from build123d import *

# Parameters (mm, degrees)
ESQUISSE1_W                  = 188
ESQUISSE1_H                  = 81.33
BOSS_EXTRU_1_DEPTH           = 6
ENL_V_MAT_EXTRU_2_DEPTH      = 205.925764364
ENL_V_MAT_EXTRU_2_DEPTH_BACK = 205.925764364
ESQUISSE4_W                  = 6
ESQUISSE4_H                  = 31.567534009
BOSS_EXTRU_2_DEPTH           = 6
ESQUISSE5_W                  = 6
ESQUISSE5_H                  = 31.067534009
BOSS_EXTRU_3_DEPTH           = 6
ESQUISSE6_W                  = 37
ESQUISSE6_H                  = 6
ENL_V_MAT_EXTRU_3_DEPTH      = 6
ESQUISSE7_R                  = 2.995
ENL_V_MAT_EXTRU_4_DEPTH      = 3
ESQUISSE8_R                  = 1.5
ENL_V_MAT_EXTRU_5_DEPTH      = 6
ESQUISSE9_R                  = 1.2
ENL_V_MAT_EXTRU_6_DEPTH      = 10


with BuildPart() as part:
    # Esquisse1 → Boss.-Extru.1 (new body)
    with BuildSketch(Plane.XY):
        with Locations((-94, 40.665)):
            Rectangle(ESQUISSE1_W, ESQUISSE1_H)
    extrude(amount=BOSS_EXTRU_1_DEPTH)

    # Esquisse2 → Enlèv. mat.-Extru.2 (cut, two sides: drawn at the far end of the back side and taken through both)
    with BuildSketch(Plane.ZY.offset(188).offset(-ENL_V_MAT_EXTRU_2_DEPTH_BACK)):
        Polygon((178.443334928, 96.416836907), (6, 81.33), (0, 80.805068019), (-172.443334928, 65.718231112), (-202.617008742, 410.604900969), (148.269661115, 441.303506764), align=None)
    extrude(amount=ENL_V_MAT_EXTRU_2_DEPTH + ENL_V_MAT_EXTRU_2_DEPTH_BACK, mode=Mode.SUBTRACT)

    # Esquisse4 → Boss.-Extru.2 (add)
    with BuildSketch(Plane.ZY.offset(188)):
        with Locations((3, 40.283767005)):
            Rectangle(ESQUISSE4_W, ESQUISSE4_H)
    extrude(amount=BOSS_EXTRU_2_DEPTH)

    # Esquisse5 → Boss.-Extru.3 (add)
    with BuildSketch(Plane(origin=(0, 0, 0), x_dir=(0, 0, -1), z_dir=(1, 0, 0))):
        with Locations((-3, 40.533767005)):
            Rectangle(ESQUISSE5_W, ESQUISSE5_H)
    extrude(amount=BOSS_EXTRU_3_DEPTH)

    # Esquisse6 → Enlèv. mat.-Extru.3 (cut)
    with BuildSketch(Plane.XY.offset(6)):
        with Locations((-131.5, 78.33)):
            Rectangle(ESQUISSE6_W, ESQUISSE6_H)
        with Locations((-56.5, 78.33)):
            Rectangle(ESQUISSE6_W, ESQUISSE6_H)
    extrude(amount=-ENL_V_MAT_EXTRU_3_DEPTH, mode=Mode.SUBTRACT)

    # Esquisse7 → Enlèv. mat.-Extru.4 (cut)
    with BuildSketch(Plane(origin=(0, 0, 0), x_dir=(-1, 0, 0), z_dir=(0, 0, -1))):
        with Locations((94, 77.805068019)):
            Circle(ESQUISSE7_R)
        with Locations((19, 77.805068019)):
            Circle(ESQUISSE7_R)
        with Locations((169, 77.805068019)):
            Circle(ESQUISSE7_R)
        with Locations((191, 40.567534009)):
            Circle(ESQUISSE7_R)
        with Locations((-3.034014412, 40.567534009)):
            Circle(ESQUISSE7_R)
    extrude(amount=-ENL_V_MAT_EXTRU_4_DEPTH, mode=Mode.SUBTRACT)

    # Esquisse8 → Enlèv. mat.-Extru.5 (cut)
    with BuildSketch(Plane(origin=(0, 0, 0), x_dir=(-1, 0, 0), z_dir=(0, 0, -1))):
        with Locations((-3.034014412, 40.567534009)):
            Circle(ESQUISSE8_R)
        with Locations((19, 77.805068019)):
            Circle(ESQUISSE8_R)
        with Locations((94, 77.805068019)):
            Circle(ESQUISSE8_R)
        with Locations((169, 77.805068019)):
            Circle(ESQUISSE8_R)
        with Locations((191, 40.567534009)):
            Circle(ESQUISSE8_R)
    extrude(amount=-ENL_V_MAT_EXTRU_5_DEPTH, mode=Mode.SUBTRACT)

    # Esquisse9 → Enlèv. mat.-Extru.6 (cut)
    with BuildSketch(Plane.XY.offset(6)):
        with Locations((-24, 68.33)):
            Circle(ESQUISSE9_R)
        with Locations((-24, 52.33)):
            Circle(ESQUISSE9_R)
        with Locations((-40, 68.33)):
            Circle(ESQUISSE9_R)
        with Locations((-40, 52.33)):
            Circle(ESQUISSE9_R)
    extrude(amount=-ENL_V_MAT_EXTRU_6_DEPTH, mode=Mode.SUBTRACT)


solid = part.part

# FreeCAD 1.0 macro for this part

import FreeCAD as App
import Part
import Sketcher
from FreeCAD import Vector
Q = App.Units.Quantity


def add_polygon(sketch, points):
    """Adds a closed chain of lines whose ends are joined by coincident constraints."""
    first, n = sketch.GeometryCount, len(points)
    for a, b in zip(points, points[1:] + points[:1]):
        sketch.addGeometry(Part.LineSegment(App.Vector(*a, 0), App.Vector(*b, 0)), False)
    for i in range(n):
        sketch.addConstraint(Sketcher.Constraint("Coincident", first + i, 2, first + (i + 1) % n, 1))

doc = App.newDocument("Part")
body = doc.addObject("PartDesign::Body", "Body")

# Sketch on XY plane
sketch1 = body.newObject("Sketcher::SketchObject", "Sketch")
sketch1.AttachmentSupport = (doc.getObject("XY_Plane"), [""])
sketch1.MapMode = "FlatFace"
add_polygon(sketch1, [(-188, 81), (-188, 0), (0, 0), (0, 81)])  # lines 0-3
sketch1.addConstraint(Sketcher.Constraint("Vertical", 0))
sketch1.addConstraint(Sketcher.Constraint("Horizontal", 1))
sketch1.addConstraint(Sketcher.Constraint("Vertical", 2))
sketch1.addConstraint(Sketcher.Constraint("Horizontal", 3))
sketch1.addConstraint(Sketcher.Constraint("Coincident", 1, 2, -1, 1))
sketch1.addConstraint(Sketcher.Constraint("DistanceX", 1, 1, 1, 2, Q("188 mm")))
sketch1.addConstraint(Sketcher.Constraint("DistanceY", 0, 2, 0, 1, Q("81.33 mm")))
pad1 = body.newObject("PartDesign::Pad", "Pad")
pad1.Profile = sketch1
pad1.Length = 6

# Sketch on YZ plane
sketch2 = body.newObject("Sketcher::SketchObject", "Sketch001")
sketch2.AttachmentSupport = (doc.getObject("YZ_Plane"), [""])
sketch2.MapMode = "FlatFace"
sketch2.AttachmentOffset = App.Placement(Vector(0, 0, -188), App.Rotation())
add_polygon(sketch2, [(81, 6), (96, 178), (441, 148), (411, -203), (66, -172), (81, 0)])  # lines 0-5
sketch2.addConstraint(Sketcher.Constraint("PointOnObject", 4, 2, -1))
sketch2.addConstraint(Sketcher.Constraint("Perpendicular", 0, 1))
sketch2.addConstraint(Sketcher.Constraint("Perpendicular", 1, 2))
sketch2.addConstraint(Sketcher.Constraint("Perpendicular", 2, 3))
sketch2.addConstraint(Sketcher.Constraint("Perpendicular", 3, 4))
sketch2.addConstraint(Sketcher.Constraint("Parallel", 4, 5))
sketch2.addConstraint(Sketcher.Constraint("Equal", 0, 4))
sketch2.addConstraint(Sketcher.Constraint("Angle", 0, Q("85 deg")))
sketch2.addConstraint(Sketcher.Constraint("DistanceY", -1, 1, 5, 2, Q("6 mm")))
sketch2.addConstraint(Sketcher.Constraint("DistanceX", -1, 1, 5, 2, Q("81.33 mm")))
sketch2.addConstraint(Sketcher.Constraint("Distance", 2, Q("352.227 mm")))
sketch2.addConstraint(Sketcher.Constraint("DistanceX", -1, 1, 2, 2, Q("410.604901 mm")))
pocket1 = body.newObject("PartDesign::Pocket", "Pocket")
pocket1.Profile = sketch2
pocket1.Type = "ThroughAll"
pocket1.Midplane = True

# Sketch on YZ plane
sketch3 = body.newObject("Sketcher::SketchObject", "Sketch002")
sketch3.AttachmentSupport = (doc.getObject("YZ_Plane"), [""])
sketch3.MapMode = "FlatFace"
sketch3.AttachmentOffset = App.Placement(Vector(0, 0, -188), App.Rotation())
add_polygon(sketch3, [(56, 0), (25, 0), (25, 6), (56, 6)])  # lines 0-3
sketch3.addConstraint(Sketcher.Constraint("Horizontal", 0))
sketch3.addConstraint(Sketcher.Constraint("Vertical", 1))
sketch3.addConstraint(Sketcher.Constraint("Horizontal", 2))
sketch3.addConstraint(Sketcher.Constraint("Vertical", 3))
sketch3.addConstraint(Sketcher.Constraint("PointOnObject", 0, 2, -1))
sketch3.addConstraint(Sketcher.Constraint("DistanceY", 1, 1, 1, 2, Q("6 mm")))
sketch3.addConstraint(Sketcher.Constraint("DistanceX", -1, 1, 0, 2, Q("24.5 mm")))
sketch3.addConstraint(Sketcher.Constraint("DistanceX", 0, 2, 0, 1, Q("31.567534 mm")))
pad2 = body.newObject("PartDesign::Pad", "Pad001")
pad2.Profile = sketch3
pad2.Length = 6
pad2.Reversed = True

# Sketch on YZ plane
sketch4 = body.newObject("Sketcher::SketchObject", "Sketch003")
sketch4.AttachmentSupport = (doc.getObject("YZ_Plane"), [""])
sketch4.MapMode = "FlatFace"
add_polygon(sketch4, [(56, 6), (25, 6), (25, 0), (56, 0)])  # lines 0-3
sketch4.addConstraint(Sketcher.Constraint("Horizontal", 0))
sketch4.addConstraint(Sketcher.Constraint("Vertical", 1))
sketch4.addConstraint(Sketcher.Constraint("Horizontal", 2))
sketch4.addConstraint(Sketcher.Constraint("Vertical", 3))
sketch4.addConstraint(Sketcher.Constraint("PointOnObject", 1, 2, -1))
sketch4.addConstraint(Sketcher.Constraint("DistanceY", 1, 2, 1, 1, Q("6 mm")))
sketch4.addConstraint(Sketcher.Constraint("DistanceX", -1, 1, 0, 2, Q("25 mm")))
sketch4.addConstraint(Sketcher.Constraint("DistanceX", 0, 2, 0, 1, Q("31.067534 mm")))
pad3 = body.newObject("PartDesign::Pad", "Pad002")
pad3.Profile = sketch4
pad3.Length = 6

# Sketch on XY plane
sketch5 = body.newObject("Sketcher::SketchObject", "Sketch004")
sketch5.AttachmentSupport = (doc.getObject("XY_Plane"), [""])
sketch5.MapMode = "FlatFace"
sketch5.AttachmentOffset = App.Placement(Vector(0, 0, 6), App.Rotation())
add_polygon(sketch5, [(-150, 81), (-150, 75), (-113, 75), (-113, 81)])  # lines 0-3
add_polygon(sketch5, [(-75, 81), (-75, 75), (-38, 75), (-38, 81)])  # lines 4-7
sketch5.addConstraint(Sketcher.Constraint("Vertical", 0))
sketch5.addConstraint(Sketcher.Constraint("Horizontal", 1))
sketch5.addConstraint(Sketcher.Constraint("Vertical", 2))
sketch5.addConstraint(Sketcher.Constraint("Horizontal", 3))
sketch5.addConstraint(Sketcher.Constraint("Vertical", 4))
sketch5.addConstraint(Sketcher.Constraint("Horizontal", 5))
sketch5.addConstraint(Sketcher.Constraint("Vertical", 6))
sketch5.addConstraint(Sketcher.Constraint("Horizontal", 7))
sketch5.addConstraint(Sketcher.Constraint("Horizontal", 1, 2, 4, 2))
sketch5.addConstraint(Sketcher.Constraint("Horizontal", 3, 2, 6, 2))
sketch5.addConstraint(Sketcher.Constraint("Equal", 3, 5))
sketch5.addConstraint(Sketcher.Constraint("DistanceX", 1, 1, 1, 2, Q("37 mm")))
sketch5.addConstraint(Sketcher.Constraint("DistanceY", 0, 2, 0, 1, Q("6 mm")))
sketch5.addConstraint(Sketcher.Constraint("DistanceX", 0, 2, -1, 1, Q("150 mm")))
sketch5.addConstraint(Sketcher.Constraint("DistanceX", 4, 2, -1, 1, Q("75 mm")))
sketch5.addConstraint(Sketcher.Constraint("DistanceY", -1, 1, 0, 2, Q("75.33 mm")))
pocket2 = body.newObject("PartDesign::Pocket", "Pocket001")
pocket2.Profile = sketch5
pocket2.Length = 6

# Sketch on XY plane
sketch6 = body.newObject("Sketcher::SketchObject", "Sketch005")
sketch6.AttachmentSupport = (doc.getObject("XY_Plane"), [""])
sketch6.MapMode = "FlatFace"
sketch6.addGeometry(Part.Circle(Vector(-94, 77.8, 0), Vector(0, 0, 1), 3), False)
sketch6.addGeometry(Part.Circle(Vector(-19, 77.8, 0), Vector(0, 0, 1), 3), False)
sketch6.addGeometry(Part.Circle(Vector(-169, 77.8, 0), Vector(0, 0, 1), 3), False)
sketch6.addGeometry(Part.Circle(Vector(-191, 40.6, 0), Vector(0, 0, 1), 3), False)
sketch6.addGeometry(Part.Circle(Vector(3, 40.6, 0), Vector(0, 0, 1), 3), False)
sketch6.addConstraint(Sketcher.Constraint("Equal", 0, 1))
sketch6.addConstraint(Sketcher.Constraint("Equal", 1, 2))
sketch6.addConstraint(Sketcher.Constraint("Equal", 2, 3))
sketch6.addConstraint(Sketcher.Constraint("Equal", 3, 4))
sketch6.addConstraint(Sketcher.Constraint("Horizontal", 0, 3, 1, 3))
sketch6.addConstraint(Sketcher.Constraint("Horizontal", 1, 3, 2, 3))
sketch6.addConstraint(Sketcher.Constraint("Horizontal", 3, 3, 4, 3))
sketch6.addConstraint(Sketcher.Constraint("Diameter", 0, Q("5.99 mm")))
sketch6.addConstraint(Sketcher.Constraint("DistanceX", 0, 3, -1, 1, Q("94 mm")))
sketch6.addConstraint(Sketcher.Constraint("DistanceX", 1, 3, -1, 1, Q("19 mm")))
sketch6.addConstraint(Sketcher.Constraint("DistanceX", 2, 3, -1, 1, Q("169 mm")))
sketch6.addConstraint(Sketcher.Constraint("DistanceX", 3, 3, -1, 1, Q("191 mm")))
sketch6.addConstraint(Sketcher.Constraint("DistanceY", -1, 1, 0, 3, Q("77.805068 mm")))
sketch6.addConstraint(Sketcher.Constraint("DistanceY", -1, 1, 3, 3, Q("40.567534 mm")))
sketch6.addConstraint(Sketcher.Constraint("DistanceX", -1, 1, 4, 3, Q("3.034014 mm")))
pocket3 = body.newObject("PartDesign::Pocket", "Pocket002")
pocket3.Profile = sketch6
pocket3.Length = 3
pocket3.Reversed = True

# Sketch on XY plane
sketch7 = body.newObject("Sketcher::SketchObject", "Sketch006")
sketch7.AttachmentSupport = (doc.getObject("XY_Plane"), [""])
sketch7.MapMode = "FlatFace"
sketch7.addGeometry(Part.Circle(Vector(3, 40.6, 0), Vector(0, 0, 1), 1.5), False)
sketch7.addGeometry(Part.Circle(Vector(-19, 77.8, 0), Vector(0, 0, 1), 1.5), False)
sketch7.addGeometry(Part.Circle(Vector(-94, 77.8, 0), Vector(0, 0, 1), 1.5), False)
sketch7.addGeometry(Part.Circle(Vector(-169, 77.8, 0), Vector(0, 0, 1), 1.5), False)
sketch7.addGeometry(Part.Circle(Vector(-191, 40.6, 0), Vector(0, 0, 1), 1.5), False)
sketch7.addConstraint(Sketcher.Constraint("Equal", 0, 1))
sketch7.addConstraint(Sketcher.Constraint("Equal", 1, 2))
sketch7.addConstraint(Sketcher.Constraint("Equal", 2, 3))
sketch7.addConstraint(Sketcher.Constraint("Equal", 3, 4))
sketch7.addConstraint(Sketcher.Constraint("Horizontal", 1, 3, 2, 3))
sketch7.addConstraint(Sketcher.Constraint("Horizontal", 2, 3, 3, 3))
sketch7.addConstraint(Sketcher.Constraint("Horizontal", 0, 3, 4, 3))
sketch7.addConstraint(Sketcher.Constraint("Diameter", 0, Q("3 mm")))
sketch7.addConstraint(Sketcher.Constraint("DistanceX", 1, 3, -1, 1, Q("19 mm")))
sketch7.addConstraint(Sketcher.Constraint("DistanceX", 2, 3, -1, 1, Q("94 mm")))
sketch7.addConstraint(Sketcher.Constraint("DistanceX", 3, 3, -1, 1, Q("169 mm")))
sketch7.addConstraint(Sketcher.Constraint("DistanceX", 4, 3, -1, 1, Q("191 mm")))
sketch7.addConstraint(Sketcher.Constraint("DistanceY", -1, 1, 1, 3, Q("77.805068 mm")))
sketch7.addConstraint(Sketcher.Constraint("DistanceX", -1, 1, 0, 3, Q("3.034014 mm")))
sketch7.addConstraint(Sketcher.Constraint("DistanceY", -1, 1, 0, 3, Q("40.567534 mm")))
pocket4 = body.newObject("PartDesign::Pocket", "Pocket003")
pocket4.Profile = sketch7
pocket4.Length = 6
pocket4.Reversed = True

# Sketch on XY plane
sketch8 = body.newObject("Sketcher::SketchObject", "Sketch007")
sketch8.AttachmentSupport = (doc.getObject("XY_Plane"), [""])
sketch8.MapMode = "FlatFace"
sketch8.AttachmentOffset = App.Placement(Vector(0, 0, 6), App.Rotation())
sketch8.addGeometry(Part.Circle(Vector(-24, 68.3, 0), Vector(0, 0, 1), 1.2), False)
sketch8.addGeometry(Part.Circle(Vector(-24, 52.3, 0), Vector(0, 0, 1), 1.2), False)
sketch8.addGeometry(Part.Circle(Vector(-40, 68.3, 0), Vector(0, 0, 1), 1.2), False)
sketch8.addGeometry(Part.Circle(Vector(-40, 52.3, 0), Vector(0, 0, 1), 1.2), False)
sketch8.addConstraint(Sketcher.Constraint("Equal", 0, 1))
sketch8.addConstraint(Sketcher.Constraint("Equal", 1, 2))
sketch8.addConstraint(Sketcher.Constraint("Equal", 2, 3))
sketch8.addConstraint(Sketcher.Constraint("Horizontal", 0, 3, 2, 3))
sketch8.addConstraint(Sketcher.Constraint("Horizontal", 1, 3, 3, 3))
sketch8.addConstraint(Sketcher.Constraint("Vertical", 0, 3, 1, 3))
sketch8.addConstraint(Sketcher.Constraint("Vertical", 2, 3, 3, 3))
sketch8.addConstraint(Sketcher.Constraint("Diameter", 0, Q("2.4 mm")))
sketch8.addConstraint(Sketcher.Constraint("DistanceX", 0, 3, -1, 1, Q("24 mm")))
sketch8.addConstraint(Sketcher.Constraint("DistanceX", 2, 3, -1, 1, Q("40 mm")))
sketch8.addConstraint(Sketcher.Constraint("DistanceY", 1, 3, 0, 3, Q("16 mm")))
sketch8.addConstraint(Sketcher.Constraint("DistanceY", -1, 1, 0, 3, Q("68.33 mm")))
pocket5 = body.newObject("PartDesign::Pocket", "Pocket004")
pocket5.Profile = sketch8
pocket5.Length = 10

doc.recompute()
